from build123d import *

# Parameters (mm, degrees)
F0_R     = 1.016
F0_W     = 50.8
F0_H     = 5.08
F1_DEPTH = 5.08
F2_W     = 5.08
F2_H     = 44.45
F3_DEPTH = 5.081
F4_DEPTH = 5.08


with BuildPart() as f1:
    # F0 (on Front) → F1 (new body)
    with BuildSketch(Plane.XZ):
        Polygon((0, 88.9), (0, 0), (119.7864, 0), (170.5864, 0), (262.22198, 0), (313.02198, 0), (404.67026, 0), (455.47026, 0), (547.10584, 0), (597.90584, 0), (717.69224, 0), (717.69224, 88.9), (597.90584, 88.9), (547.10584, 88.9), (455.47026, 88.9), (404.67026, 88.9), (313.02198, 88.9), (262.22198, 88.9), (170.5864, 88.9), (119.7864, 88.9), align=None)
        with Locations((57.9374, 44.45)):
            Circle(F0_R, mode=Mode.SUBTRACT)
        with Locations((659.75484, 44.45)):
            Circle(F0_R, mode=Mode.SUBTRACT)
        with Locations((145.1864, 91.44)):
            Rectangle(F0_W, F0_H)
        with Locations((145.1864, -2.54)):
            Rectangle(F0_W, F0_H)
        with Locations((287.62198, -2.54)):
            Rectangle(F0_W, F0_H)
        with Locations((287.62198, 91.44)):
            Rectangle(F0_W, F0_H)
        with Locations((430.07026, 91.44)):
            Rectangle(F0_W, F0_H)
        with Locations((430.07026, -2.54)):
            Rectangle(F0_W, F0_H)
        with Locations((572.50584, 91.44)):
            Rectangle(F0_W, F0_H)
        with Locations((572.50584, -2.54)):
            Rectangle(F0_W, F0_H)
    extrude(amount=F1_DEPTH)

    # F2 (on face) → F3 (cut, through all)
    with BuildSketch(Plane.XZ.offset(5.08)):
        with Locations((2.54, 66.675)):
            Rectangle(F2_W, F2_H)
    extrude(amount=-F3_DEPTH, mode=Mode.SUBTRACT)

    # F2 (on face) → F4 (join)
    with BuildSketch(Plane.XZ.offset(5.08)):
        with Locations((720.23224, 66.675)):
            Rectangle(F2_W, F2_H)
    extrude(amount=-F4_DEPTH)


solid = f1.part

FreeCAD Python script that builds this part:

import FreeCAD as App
import Part
import Sketcher
Q = App.Units.Quantity

doc = App.newDocument("Part")
body = doc.addObject("PartDesign::Body", "Body")

# Sketch on XZ plane
sketch1 = doc.addObject("Sketcher::SketchObject", "Sketch")
body.addObject(sketch1)
sketch1.AttachmentSupport = (doc.XZ_Plane, [""])
sketch1.MapMode = "FlatFace"
sketch1.addGeometry(Part.LineSegment(App.Vector(0, 88.9, 0), App.Vector(0, 0, 0)), False)
sketch1.addGeometry(Part.LineSegment(App.Vector(0, 0, 0), App.Vector(119.7864, 0, 0)), False)
sketch1.addGeometry(Part.LineSegment(App.Vector(119.7864, 0, 0), App.Vector(119.7864, -5.08, 0)), False)
sketch1.addGeometry(Part.LineSegment(App.Vector(119.7864, -5.08, 0), App.Vector(170.5864, -5.08, 0)), False)
sketch1.addGeometry(Part.LineSegment(App.Vector(170.5864, -5.08, 0), App.Vector(170.5864, 0, 0)), False)
sketch1.addGeometry(Part.LineSegment(App.Vector(170.5864, 0, 0), App.Vector(262.22198, 0, 0)), False)
sketch1.addGeometry(Part.LineSegment(App.Vector(262.22198, 0, 0), App.Vector(262.22198, -5.08, 0)), False)
sketch1.addGeometry(Part.LineSegment(App.Vector(262.22198, -5.08, 0), App.Vector(313.02198, -5.08, 0)), False)
sketch1.addGeometry(Part.LineSegment(App.Vector(313.02198, -5.08, 0), App.Vector(313.02198, 0, 0)), False)
sketch1.addGeometry(Part.LineSegment(App.Vector(313.02198, 0, 0), App.Vector(404.67026, 0, 0)), False)
sketch1.addGeometry(Part.LineSegment(App.Vector(404.67026, 0, 0), App.Vector(404.67026, -5.08, 0)), False)
sketch1.addGeometry(Part.LineSegment(App.Vector(404.67026, -5.08, 0), App.Vector(455.47026, -5.08, 0)), False)
sketch1.addGeometry(Part.LineSegment(App.Vector(455.47026, -5.08, 0), App.Vector(455.47026, 0, 0)), False)
sketch1.addGeometry(Part.LineSegment(App.Vector(455.47026, 0, 0), App.Vector(547.10584, 0, 0)), False)
sketch1.addGeometry(Part.LineSegment(App.Vector(547.10584, 0, 0), App.Vector(547.10584, -5.08, 0)), False)
sketch1.addGeometry(Part.LineSegment(App.Vector(547.10584, -5.08, 0), App.Vector(597.90584, -5.08, 0)), False)
sketch1.addGeometry(Part.LineSegment(App.Vector(597.90584, -5.08, 0), App.Vector(597.90584, 0, 0)), False)
sketch1.addGeometry(Part.LineSegment(App.Vector(597.90584, 0, 0), App.Vector(717.69224, 0, 0)), False)
sketch1.addGeometry(Part.LineSegment(App.Vector(717.69224, 0, 0), App.Vector(717.69224, 88.9, 0)), False)
sketch1.addGeometry(Part.LineSegment(App.Vector(717.69224, 88.9, 0), App.Vector(597.90584, 88.9, 0)), False)
sketch1.addGeometry(Part.LineSegment(App.Vector(597.90584, 88.9, 0), App.Vector(597.90584, 93.98, 0)), False)
sketch1.addGeometry(Part.LineSegment(App.Vector(597.90584, 93.98, 0), App.Vector(547.10584, 93.98, 0)), False)
sketch1.addGeometry(Part.LineSegment(App.Vector(547.10584, 93.98, 0), App.Vector(547.10584, 88.9, 0)), False)
sketch1.addGeometry(Part.LineSegment(App.Vector(547.10584, 88.9, 0), App.Vector(455.47026, 88.9, 0)), False)
sketch1.addGeometry(Part.LineSegment(App.Vector(455.47026, 88.9, 0), App.Vector(455.47026, 93.98, 0)), False)
sketch1.addGeometry(Part.LineSegment(App.Vector(455.47026, 93.98, 0), App.Vector(404.67026, 93.98, 0)), False)
sketch1.addGeometry(Part.LineSegment(App.Vector(404.67026, 93.98, 0), App.Vector(404.67026, 88.9, 0)), False)
sketch1.addGeometry(Part.LineSegment(App.Vector(404.67026, 88.9, 0), App.Vector(313.02198, 88.9, 0)), False)
sketch1.addGeometry(Part.LineSegment(App.Vector(313.02198, 88.9, 0), App.Vector(313.02198, 93.98, 0)), False)
sketch1.addGeometry(Part.LineSegment(App.Vector(313.02198, 93.98, 0), App.Vector(262.22198, 93.98, 0)), False)
sketch1.addGeometry(Part.LineSegment(App.Vector(262.22198, 93.98, 0), App.Vector(262.22198, 88.9, 0)), False)
sketch1.addGeometry(Part.LineSegment(App.Vector(262.22198, 88.9, 0), App.Vector(170.5864, 88.9, 0)), False)
sketch1.addGeometry(Part.LineSegment(App.Vector(170.5864, 88.9, 0), App.Vector(170.5864, 93.98, 0)), False)
sketch1.addGeometry(Part.LineSegment(App.Vector(170.5864, 93.98, 0), App.Vector(119.7864, 93.98, 0)), False)
sketch1.addGeometry(Part.LineSegment(App.Vector(119.7864, 93.98, 0), App.Vector(119.7864, 88.9, 0)), False)
sketch1.addGeometry(Part.LineSegment(App.Vector(119.7864, 88.9, 0), App.Vector(0, 88.9, 0)), False)
sketch1.addGeometry(Part.Circle(App.Vector(57.9374, 44.45, 0), App.Vector(0, 0, 1), 1.016), False)
sketch1.addGeometry(Part.Circle(App.Vector(659.75484, 44.45, 0), App.Vector(0, 0, 1), 1.016), False)
sketch1.addConstraint(Sketcher.Constraint("Coincident", 0, 2, 1, 1))
sketch1.addConstraint(Sketcher.Constraint("Coincident", 1, 2, 2, 1))
sketch1.addConstraint(Sketcher.Constraint("Coincident", 2, 2, 3, 1))
sketch1.addConstraint(Sketcher.Constraint("Coincident", 3, 2, 4, 1))
sketch1.addConstraint(Sketcher.Constraint("Coincident", 4, 2, 5, 1))
sketch1.addConstraint(Sketcher.Constraint("Coincident", 5, 2, 6, 1))
sketch1.addConstraint(Sketcher.Constraint("Coincident", 6, 2, 7, 1))
sketch1.addConstraint(Sketcher.Constraint("Coincident", 7, 2, 8, 1))
sketch1.addConstraint(Sketcher.Constraint("Coincident", 8, 2, 9, 1))
sketch1.addConstraint(Sketcher.Constraint("Coincident", 9, 2, 10, 1))
sketch1.addConstraint(Sketcher.Constraint("Coincident", 10, 2, 11, 1))
sketch1.addConstraint(Sketcher.Constraint("Coincident", 11, 2, 12, 1))
sketch1.addConstraint(Sketcher.Constraint("Coincident", 12, 2, 13, 1))
sketch1.addConstraint(Sketcher.Constraint("Coincident", 13, 2, 14, 1))
sketch1.addConstraint(Sketcher.Constraint("Coincident", 14, 2, 15, 1))
sketch1.addConstraint(Sketcher.Constraint("Coincident", 15, 2, 16, 1))
sketch1.addConstraint(Sketcher.Constraint("Coincident", 16, 2, 17, 1))
sketch1.addConstraint(Sketcher.Constraint("Coincident", 17, 2, 18, 1))
sketch1.addConstraint(Sketcher.Constraint("Coincident", 18, 2, 19, 1))
sketch1.addConstraint(Sketcher.Constraint("Coincident", 19, 2, 20, 1))
sketch1.addConstraint(Sketcher.Constraint("Coincident", 20, 2, 21, 1))
sketch1.addConstraint(Sketcher.Constraint("Coincident", 21, 2, 22, 1))
sketch1.addConstraint(Sketcher.Constraint("Coincident", 22, 2, 23, 1))
sketch1.addConstraint(Sketcher.Constraint("Coincident", 23, 2, 24, 1))
sketch1.addConstraint(Sketcher.Constraint("Coincident", 24, 2, 25, 1))
sketch1.addConstraint(Sketcher.Constraint("Coincident", 25, 2, 26, 1))
sketch1.addConstraint(Sketcher.Constraint("Coincident", 26, 2, 27, 1))
sketch1.addConstraint(Sketcher.Constraint("Coincident", 27, 2, 28, 1))
sketch1.addConstraint(Sketcher.Constraint("Coincident", 28, 2, 29, 1))
sketch1.addConstraint(Sketcher.Constraint("Coincident", 29, 2, 30, 1))
sketch1.addConstraint(Sketcher.Constraint("Coincident", 30, 2, 31, 1))
sketch1.addConstraint(Sketcher.Constraint("Coincident", 31, 2, 32, 1))
sketch1.addConstraint(Sketcher.Constraint("Coincident", 32, 2, 33, 1))
sketch1.addConstraint(Sketcher.Constraint("Coincident", 33, 2, 34, 1))
sketch1.addConstraint(Sketcher.Constraint("Coincident", 34, 2, 35, 1))
sketch1.addConstraint(Sketcher.Constraint("Coincident", 35, 2, 0, 1))
sketch1.addConstraint(Sketcher.Constraint("Vertical", 0))
sketch1.addConstraint(Sketcher.Constraint("Horizontal", 1))
sketch1.addConstraint(Sketcher.Constraint("Vertical", 2))
sketch1.addConstraint(Sketcher.Constraint("Horizontal", 3))
sketch1.addConstraint(Sketcher.Constraint("Vertical", 4))
sketch1.addConstraint(Sketcher.Constraint("Horizontal", 5))
sketch1.addConstraint(Sketcher.Constraint("Vertical", 6))
sketch1.addConstraint(Sketcher.Constraint("Horizontal", 7))
sketch1.addConstraint(Sketcher.Constraint("Vertical", 8))
sketch1.addConstraint(Sketcher.Constraint("Horizontal", 9))
sketch1.addConstraint(Sketcher.Constraint("Vertical", 10))
sketch1.addConstraint(Sketcher.Constraint("Horizontal", 11))
sketch1.addConstraint(Sketcher.Constraint("Vertical", 12))
sketch1.addConstraint(Sketcher.Constraint("Horizontal", 13))
sketch1.addConstraint(Sketcher.Constraint("Vertical", 14))
sketch1.addConstraint(Sketcher.Constraint("Horizontal", 15))
sketch1.addConstraint(Sketcher.Constraint("Vertical", 16))
sketch1.addConstraint(Sketcher.Constraint("Horizontal", 17))
sketch1.addConstraint(Sketcher.Constraint("Vertical", 18))
sketch1.addConstraint(Sketcher.Constraint("Horizontal", 19))
sketch1.addConstraint(Sketcher.Constraint("Vertical", 20))
sketch1.addConstraint(Sketcher.Constraint("Horizontal", 21))
sketch1.addConstraint(Sketcher.Constraint("Vertical", 22))
sketch1.addConstraint(Sketcher.Constraint("Horizontal", 23))
sketch1.addConstraint(Sketcher.Constraint("Vertical", 24))
sketch1.addConstraint(Sketcher.Constraint("Horizontal", 25))
sketch1.addConstraint(Sketcher.Constraint("Vertical", 26))
sketch1.addConstraint(Sketcher.Constraint("Horizontal", 27))
sketch1.addConstraint(Sketcher.Constraint("Vertical", 28))
sketch1.addConstraint(Sketcher.Constraint("Horizontal", 29))
sketch1.addConstraint(Sketcher.Constraint("Vertical", 30))
sketch1.addConstraint(Sketcher.Constraint("Horizontal", 31))
sketch1.addConstraint(Sketcher.Constraint("Vertical", 32))
sketch1.addConstraint(Sketcher.Constraint("Horizontal", 33))
sketch1.addConstraint(Sketcher.Constraint("Vertical", 34))
sketch1.addConstraint(Sketcher.Constraint("Horizontal", 35))
sketch1.addConstraint(Sketcher.Constraint("Coincident", 0, 2, -1, 1))
sketch1.addConstraint(Sketcher.Constraint("Equal", 36, 37))
sketch1.addConstraint(Sketcher.Constraint("PointOnObject", 4, 2, -1))
sketch1.addConstraint(Sketcher.Constraint("PointOnObject", 8, 2, -1))
sketch1.addConstraint(Sketcher.Constraint("PointOnObject", 12, 2, -1))
sketch1.addConstraint(Sketcher.Constraint("PointOnObject", 16, 2, -1))
sketch1.addConstraint(Sketcher.Constraint("Horizontal", 36, 3, 37, 3))
sketch1.addConstraint(Sketcher.Constraint("Horizontal", 3, 2, 6, 2))
sketch1.addConstraint(Sketcher.Constraint("Horizontal", 7, 2, 10, 2))
sketch1.addConstraint(Sketcher.Constraint("Horizontal", 11, 2, 14, 2))
sketch1.addConstraint(Sketcher.Constraint("Horizontal", 19, 2, 22, 2))
sketch1.addConstraint(Sketcher.Constraint("Horizontal", 21, 2, 24, 2))
sketch1.addConstraint(Sketcher.Constraint("Horizontal", 23, 2, 26, 2))
sketch1.addConstraint(Sketcher.Constraint("Horizontal", 25, 2, 28, 2))
sketch1.addConstraint(Sketcher.Constraint("Horizontal", 27, 2, 30, 2))
sketch1.addConstraint(Sketcher.Constraint("Horizontal", 29, 2, 32, 2))
sketch1.addConstraint(Sketcher.Constraint("Horizontal", 31, 2, 34, 2))
sketch1.addConstraint(Sketcher.Constraint("Vertical", 16, 2, 19, 2))
sketch1.addConstraint(Sketcher.Constraint("Vertical", 14, 2, 21, 2))
sketch1.addConstraint(Sketcher.Constraint("Vertical", 12, 2, 23, 2))
sketch1.addConstraint(Sketcher.Constraint("Vertical", 10, 2, 25, 2))
sketch1.addConstraint(Sketcher.Constraint("Vertical", 8, 2, 27, 2))
sketch1.addConstraint(Sketcher.Constraint("Vertical", 6, 2, 29, 2))
sketch1.addConstraint(Sketcher.Constraint("Vertical", 4, 2, 31, 2))
sketch1.addConstraint(Sketcher.Constraint("Vertical", 2, 2, 33, 2))
sketch1.addConstraint(Sketcher.Constraint("Equal", 3, 7))
sketch1.addConstraint(Sketcher.Constraint("Equal", 7, 11))
sketch1.addConstraint(Sketcher.Constraint("Equal", 5, 13))
sketch1.addConstraint(Sketcher.Constraint("Equal", 11, 15))
sketch1.addConstraint(Sketcher.Constraint("Equal", 1, 17))
sketch1.addConstraint(Sketcher.Constraint("Equal", 16, 20))
sketch1.addConstraint(Sketcher.Constraint("Diameter", 36, Q("0.08 in")))
sketch1.addConstraint(Sketcher.Constraint("DistanceX", 3, 1, 3, 2, Q("2 in")))
sketch1.addConstraint(Sketcher.Constraint("DistanceY", 0, 2, 0, 1, Q("3.5 in")))
sketch1.addConstraint(Sketcher.Constraint("DistanceY", 2, 2, 2, 1, Q("0.2 in")))
sketch1.addConstraint(Sketcher.Constraint("DistanceX", 1, 1, 1, 2, Q("4.716 in")))
sketch1.addConstraint(Sketcher.Constraint("DistanceY", -1, 1, 36, 3, Q("1.75 in")))
sketch1.addConstraint(Sketcher.Constraint("DistanceX", 5, 1, 5, 2, Q("3.6077 in")))
sketch1.addConstraint(Sketcher.Constraint("DistanceX", 9, 1, 9, 2, Q("3.6082 in")))
sketch1.addConstraint(Sketcher.Constraint("DistanceX", -1, 1, 36, 3, Q("2.281 in")))
sketch1.addConstraint(Sketcher.Constraint("DistanceX", 13, 2, 37, 3, Q("4.435 in")))
pad1 = doc.addObject("PartDesign::Pad", "Pad")
body.addObject(pad1)
pad1.Profile = sketch1
pad1.Length = Q("0.2 in")

# Sketch on XZ plane
sketch2 = doc.addObject("Sketcher::SketchObject", "Sketch001")
body.addObject(sketch2)
sketch2.AttachmentSupport = (doc.XZ_Plane, [""])
sketch2.MapMode = "FlatFace"
sketch2.AttachmentOffset = App.Placement(App.Vector(0, 0, 0.2 * 25.4), App.Rotation())
sketch2.addGeometry(Part.LineSegment(App.Vector(0, 88.9, 0), App.Vector(0, 44.45, 0)), False)
sketch2.addGeometry(Part.LineSegment(App.Vector(0, 44.45, 0), App.Vector(5.08, 44.45, 0)), False)
sketch2.addGeometry(Part.LineSegment(App.Vector(5.08, 44.45, 0), App.Vector(5.08, 88.9, 0)), False)
sketch2.addGeometry(Part.LineSegment(App.Vector(5.08, 88.9, 0), App.Vector(0, 88.9, 0)), False)
sketch2.addConstraint(Sketcher.Constraint("Coincident", 0, 2, 1, 1))
sketch2.addConstraint(Sketcher.Constraint("Coincident", 1, 2, 2, 1))
sketch2.addConstraint(Sketcher.Constraint("Coincident", 2, 2, 3, 1))
sketch2.addConstraint(Sketcher.Constraint("Coincident", 3, 2, 0, 1))
sketch2.addConstraint(Sketcher.Constraint("Vertical", 0))
sketch2.addConstraint(Sketcher.Constraint("Horizontal", 1))
sketch2.addConstraint(Sketcher.Constraint("Vertical", 2))
sketch2.addConstraint(Sketcher.Constraint("Horizontal", 3))
sketch2.addConstraint(Sketcher.Constraint("PointOnObject", 0, 2, -2))
sketch2.addConstraint(Sketcher.Constraint("DistanceX", 1, 1, 1, 2, Q("0.2 in")))
sketch2.addConstraint(Sketcher.Constraint("DistanceY", 0, 2, 0, 1, Q("1.75 in")))
sketch2.addConstraint(Sketcher.Constraint("DistanceY", -1, 1, 2, 2, Q("3.5 in")))
pocket1 = doc.addObject("PartDesign::Pocket", "Pocket")
body.addObject(pocket1)
pocket1.Profile = sketch2
pocket1.Type = "ThroughAll"

# Sketch on XZ plane
sketch3 = doc.addObject("Sketcher::SketchObject", "Sketch002")
body.addObject(sketch3)
sketch3.AttachmentSupport = (doc.XZ_Plane, [""])
sketch3.MapMode = "FlatFace"
sketch3.AttachmentOffset = App.Placement(App.Vector(0, 0, 0.2 * 25.4), App.Rotation())
sketch3.addGeometry(Part.LineSegment(App.Vector(717.69224, 88.9, 0), App.Vector(717.69224, 44.45, 0)), False)
sketch3.addGeometry(Part.LineSegment(App.Vector(717.69224, 44.45, 0), App.Vector(722.77224, 44.45, 0)), False)
sketch3.addGeometry(Part.LineSegment(App.Vector(722.77224, 44.45, 0), App.Vector(722.77224, 88.9, 0)), False)
sketch3.addGeometry(Part.LineSegment(App.Vector(722.77224, 88.9, 0), App.Vector(717.69224, 88.9, 0)), False)
sketch3.addConstraint(Sketcher.Constraint("Coincident", 0, 2, 1, 1))
sketch3.addConstraint(Sketcher.Constraint("Coincident", 1, 2, 2, 1))
sketch3.addConstraint(Sketcher.Constraint("Coincident", 2, 2, 3, 1))
sketch3.addConstraint(Sketcher.Constraint("Coincident", 3, 2, 0, 1))
sketch3.addConstraint(Sketcher.Constraint("Vertical", 0))
sketch3.addConstraint(Sketcher.Constraint("Horizontal", 1))
sketch3.addConstraint(Sketcher.Constraint("Vertical", 2))
sketch3.addConstraint(Sketcher.Constraint("Horizontal", 3))
sketch3.addConstraint(Sketcher.Constraint("DistanceX", 1, 1, 1, 2, Q("0.2 in")))
sketch3.addConstraint(Sketcher.Constraint("DistanceY", 0, 2, 0, 1, Q("1.75 in")))
sketch3.addConstraint(Sketcher.Constraint("DistanceY", -1, 1, 2, 2, Q("3.5 in")))
sketch3.addConstraint(Sketcher.Constraint("DistanceX", -1, 1, 0, 2, Q("28.2556 in")))
pad2 = doc.addObject("PartDesign::Pad", "Pad001")
body.addObject(pad2)
pad2.Profile = sketch3
pad2.Length = Q("0.2 in")
pad2.Reversed = True

doc.recompute()
